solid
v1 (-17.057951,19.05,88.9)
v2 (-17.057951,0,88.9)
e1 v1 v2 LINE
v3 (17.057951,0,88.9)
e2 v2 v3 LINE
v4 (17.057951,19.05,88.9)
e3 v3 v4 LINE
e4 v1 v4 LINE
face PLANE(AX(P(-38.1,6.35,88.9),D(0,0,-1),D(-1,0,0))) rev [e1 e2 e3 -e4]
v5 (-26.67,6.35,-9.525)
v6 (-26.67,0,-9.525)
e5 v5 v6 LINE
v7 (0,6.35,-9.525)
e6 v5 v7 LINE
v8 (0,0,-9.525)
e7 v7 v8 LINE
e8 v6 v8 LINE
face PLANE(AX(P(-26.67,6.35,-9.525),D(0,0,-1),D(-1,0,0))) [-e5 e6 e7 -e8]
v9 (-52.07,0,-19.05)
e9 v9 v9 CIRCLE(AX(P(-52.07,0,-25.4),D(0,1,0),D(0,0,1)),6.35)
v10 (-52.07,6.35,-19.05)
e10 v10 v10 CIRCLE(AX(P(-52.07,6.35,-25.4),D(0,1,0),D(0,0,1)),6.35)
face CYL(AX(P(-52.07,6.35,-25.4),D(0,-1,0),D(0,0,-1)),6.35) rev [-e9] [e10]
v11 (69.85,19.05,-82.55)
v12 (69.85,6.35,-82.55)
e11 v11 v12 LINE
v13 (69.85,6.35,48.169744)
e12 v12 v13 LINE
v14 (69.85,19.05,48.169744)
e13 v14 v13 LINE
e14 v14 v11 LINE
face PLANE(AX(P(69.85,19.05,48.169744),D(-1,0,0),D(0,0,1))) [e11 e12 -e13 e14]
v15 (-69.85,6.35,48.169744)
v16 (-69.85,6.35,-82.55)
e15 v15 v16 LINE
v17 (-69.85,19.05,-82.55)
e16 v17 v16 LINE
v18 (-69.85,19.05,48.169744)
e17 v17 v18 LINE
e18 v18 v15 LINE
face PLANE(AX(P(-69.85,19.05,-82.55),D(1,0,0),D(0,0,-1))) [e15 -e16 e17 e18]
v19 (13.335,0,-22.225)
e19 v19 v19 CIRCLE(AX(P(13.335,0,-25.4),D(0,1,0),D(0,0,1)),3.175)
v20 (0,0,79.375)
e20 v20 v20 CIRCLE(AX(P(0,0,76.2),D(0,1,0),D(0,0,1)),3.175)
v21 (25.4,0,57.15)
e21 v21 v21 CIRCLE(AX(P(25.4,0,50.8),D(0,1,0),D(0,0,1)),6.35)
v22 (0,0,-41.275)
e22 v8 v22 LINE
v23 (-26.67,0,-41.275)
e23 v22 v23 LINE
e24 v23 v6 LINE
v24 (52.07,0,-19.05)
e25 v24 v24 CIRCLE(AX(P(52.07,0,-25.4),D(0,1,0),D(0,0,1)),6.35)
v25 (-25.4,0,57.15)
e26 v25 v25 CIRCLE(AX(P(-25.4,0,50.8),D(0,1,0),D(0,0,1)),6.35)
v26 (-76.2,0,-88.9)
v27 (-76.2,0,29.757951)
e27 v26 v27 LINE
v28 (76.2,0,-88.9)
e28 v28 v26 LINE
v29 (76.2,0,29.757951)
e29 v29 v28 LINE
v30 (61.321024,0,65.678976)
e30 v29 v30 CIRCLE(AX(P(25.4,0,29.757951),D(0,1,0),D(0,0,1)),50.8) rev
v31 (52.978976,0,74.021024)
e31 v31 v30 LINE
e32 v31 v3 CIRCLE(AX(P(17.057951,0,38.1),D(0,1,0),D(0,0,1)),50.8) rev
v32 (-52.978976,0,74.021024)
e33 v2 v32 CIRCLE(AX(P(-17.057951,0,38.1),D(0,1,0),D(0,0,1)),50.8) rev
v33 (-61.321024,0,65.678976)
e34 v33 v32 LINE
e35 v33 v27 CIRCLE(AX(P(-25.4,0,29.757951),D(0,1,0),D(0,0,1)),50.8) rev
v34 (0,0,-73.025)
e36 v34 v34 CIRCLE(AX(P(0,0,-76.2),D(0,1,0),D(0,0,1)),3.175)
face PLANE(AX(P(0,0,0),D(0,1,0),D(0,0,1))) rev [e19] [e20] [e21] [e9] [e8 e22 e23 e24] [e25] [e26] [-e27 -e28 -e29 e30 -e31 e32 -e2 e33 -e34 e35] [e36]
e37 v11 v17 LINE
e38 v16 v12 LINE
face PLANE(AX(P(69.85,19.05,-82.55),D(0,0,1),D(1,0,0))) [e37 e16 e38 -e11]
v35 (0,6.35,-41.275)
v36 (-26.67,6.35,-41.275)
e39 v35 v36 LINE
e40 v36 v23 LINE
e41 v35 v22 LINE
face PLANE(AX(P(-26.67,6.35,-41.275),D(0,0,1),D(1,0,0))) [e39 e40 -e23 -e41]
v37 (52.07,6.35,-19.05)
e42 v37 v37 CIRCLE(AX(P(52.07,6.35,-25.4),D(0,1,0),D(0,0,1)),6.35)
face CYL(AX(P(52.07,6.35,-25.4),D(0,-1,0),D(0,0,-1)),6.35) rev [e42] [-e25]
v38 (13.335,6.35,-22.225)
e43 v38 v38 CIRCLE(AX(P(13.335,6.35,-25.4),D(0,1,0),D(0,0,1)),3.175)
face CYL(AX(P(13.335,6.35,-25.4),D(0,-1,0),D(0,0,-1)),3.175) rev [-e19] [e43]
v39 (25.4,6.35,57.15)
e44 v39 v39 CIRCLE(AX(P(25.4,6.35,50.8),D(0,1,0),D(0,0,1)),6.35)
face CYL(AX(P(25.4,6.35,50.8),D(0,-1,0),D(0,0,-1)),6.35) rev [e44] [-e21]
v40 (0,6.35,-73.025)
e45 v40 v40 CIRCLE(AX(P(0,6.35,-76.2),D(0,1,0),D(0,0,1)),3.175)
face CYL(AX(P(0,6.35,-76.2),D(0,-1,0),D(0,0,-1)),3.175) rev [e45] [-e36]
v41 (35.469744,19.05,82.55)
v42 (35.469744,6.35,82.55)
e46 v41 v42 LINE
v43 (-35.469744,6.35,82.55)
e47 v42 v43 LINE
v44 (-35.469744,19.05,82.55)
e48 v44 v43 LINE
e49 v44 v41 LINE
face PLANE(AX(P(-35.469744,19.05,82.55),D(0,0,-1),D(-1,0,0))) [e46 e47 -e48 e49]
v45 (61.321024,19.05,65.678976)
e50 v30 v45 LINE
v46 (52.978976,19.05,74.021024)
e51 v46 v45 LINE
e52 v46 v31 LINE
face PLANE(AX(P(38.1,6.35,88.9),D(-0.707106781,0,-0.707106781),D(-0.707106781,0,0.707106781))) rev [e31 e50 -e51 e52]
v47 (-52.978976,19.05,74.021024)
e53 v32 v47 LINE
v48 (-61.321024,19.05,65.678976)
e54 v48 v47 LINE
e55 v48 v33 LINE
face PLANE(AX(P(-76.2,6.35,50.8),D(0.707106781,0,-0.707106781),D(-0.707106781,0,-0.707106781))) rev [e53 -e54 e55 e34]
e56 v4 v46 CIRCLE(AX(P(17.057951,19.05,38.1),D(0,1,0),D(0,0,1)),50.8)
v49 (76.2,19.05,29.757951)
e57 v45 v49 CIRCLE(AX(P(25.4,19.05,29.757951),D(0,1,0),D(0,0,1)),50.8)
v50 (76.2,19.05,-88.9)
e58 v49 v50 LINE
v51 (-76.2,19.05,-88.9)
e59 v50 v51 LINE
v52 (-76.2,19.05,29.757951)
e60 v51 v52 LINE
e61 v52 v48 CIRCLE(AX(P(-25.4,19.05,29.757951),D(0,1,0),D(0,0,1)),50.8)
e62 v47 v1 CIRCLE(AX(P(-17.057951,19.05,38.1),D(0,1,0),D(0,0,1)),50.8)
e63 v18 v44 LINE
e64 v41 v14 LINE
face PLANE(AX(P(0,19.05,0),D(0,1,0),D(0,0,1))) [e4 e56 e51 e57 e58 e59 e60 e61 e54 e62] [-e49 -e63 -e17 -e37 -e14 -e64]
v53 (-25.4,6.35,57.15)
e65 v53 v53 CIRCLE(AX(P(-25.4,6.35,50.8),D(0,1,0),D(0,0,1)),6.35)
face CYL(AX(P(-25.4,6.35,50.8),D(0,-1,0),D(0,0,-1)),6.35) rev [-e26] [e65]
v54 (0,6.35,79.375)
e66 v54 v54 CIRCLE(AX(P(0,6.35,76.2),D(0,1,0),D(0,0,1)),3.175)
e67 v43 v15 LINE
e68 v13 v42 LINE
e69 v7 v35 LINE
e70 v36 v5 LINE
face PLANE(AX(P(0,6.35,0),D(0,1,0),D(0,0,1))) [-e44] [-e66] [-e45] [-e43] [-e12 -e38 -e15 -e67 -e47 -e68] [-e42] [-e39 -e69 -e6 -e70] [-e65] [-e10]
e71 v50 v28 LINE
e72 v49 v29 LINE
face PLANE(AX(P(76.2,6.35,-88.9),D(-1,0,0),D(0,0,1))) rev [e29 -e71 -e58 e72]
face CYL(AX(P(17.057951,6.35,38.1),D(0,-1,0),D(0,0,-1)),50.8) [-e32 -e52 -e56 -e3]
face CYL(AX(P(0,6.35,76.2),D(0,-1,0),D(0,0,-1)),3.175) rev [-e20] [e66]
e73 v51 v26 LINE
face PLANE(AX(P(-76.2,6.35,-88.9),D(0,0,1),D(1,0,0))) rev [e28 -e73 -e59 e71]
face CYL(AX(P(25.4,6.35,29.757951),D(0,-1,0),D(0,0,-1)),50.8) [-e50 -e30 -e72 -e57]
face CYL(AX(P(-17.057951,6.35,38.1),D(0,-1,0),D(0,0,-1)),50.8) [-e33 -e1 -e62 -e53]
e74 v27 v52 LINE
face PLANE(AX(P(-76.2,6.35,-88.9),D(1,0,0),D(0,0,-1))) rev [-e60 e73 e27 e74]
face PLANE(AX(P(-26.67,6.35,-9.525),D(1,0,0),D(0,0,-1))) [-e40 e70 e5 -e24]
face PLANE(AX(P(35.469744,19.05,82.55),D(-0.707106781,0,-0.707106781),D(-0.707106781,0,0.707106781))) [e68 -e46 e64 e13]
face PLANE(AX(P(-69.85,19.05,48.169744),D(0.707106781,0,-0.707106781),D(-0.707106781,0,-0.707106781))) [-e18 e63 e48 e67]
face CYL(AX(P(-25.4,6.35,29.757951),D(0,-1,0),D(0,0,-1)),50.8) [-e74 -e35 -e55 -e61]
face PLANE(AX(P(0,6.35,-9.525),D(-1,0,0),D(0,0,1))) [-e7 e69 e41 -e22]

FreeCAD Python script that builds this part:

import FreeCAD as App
import Part
import Sketcher
from FreeCAD import Vector
Q = App.Units.Quantity


def edges_at(feature, points):
    """Names of the edges that pass closest to the given points."""
    edges = feature.Shape.Edges
    near = lambda p: min(range(len(edges)), key=lambda i: edges[i].distToShape(Part.Vertex(*p))[0])
    return sorted({f"Edge{near(p) + 1}" for p in points})


def add_polygon(sketch, points):
    """Adds a closed chain of lines whose ends are joined by coincident constraints."""
    first, n = sketch.GeometryCount, len(points)
    for a, b in zip(points, points[1:] + points[:1]):
        sketch.addGeometry(Part.LineSegment(App.Vector(*a, 0), App.Vector(*b, 0)), False)
    for i in range(n):
        sketch.addConstraint(Sketcher.Constraint("Coincident", first + i, 2, first + (i + 1) % n, 1))

doc = App.newDocument("Part")
body = doc.addObject("PartDesign::Body", "Body")

sketch1 = body.newObject("Sketcher::SketchObject", "Sketch")
sketch1.AttachmentSupport = (doc.getObject("XZ_Plane"), [""])
sketch1.MapMode = "FlatFace"
add_polygon(sketch1, [(76.2, -88.9), (-76.2, -88.9), (-76.2, 50.8), (-38.1, 88.9), (38.1, 88.9), (76.2, 50.8)])
sketch1.addGeometry(Part.Circle(Vector(0, 76.2, 0), Vector(0, 0, 1), 3.2), False)
sketch1.addGeometry(Part.Circle(Vector(25.4, 50.8, 0), Vector(0, 0, 1), 6.3), False)
sketch1.addGeometry(Part.Circle(Vector(-25.4, 50.8, 0), Vector(0, 0, 1), 6.3), False)
sketch1.addGeometry(Part.Circle(Vector(52.1, -25.4, 0), Vector(0, 0, 1), 6.3), False)
sketch1.addGeometry(Part.Circle(Vector(13.3, -25.4, 0), Vector(0, 0, 1), 3.2), False)
sketch1.addGeometry(Part.Circle(Vector(0, -76.2, 0), Vector(0, 0, 1), 3.2), False)
add_polygon(sketch1, [(-26.7, -9.5), (-26.7, -41.3), (0, -41.3), (0, -9.5)])
sketch1.addGeometry(Part.Circle(Vector(-52.1, -25.4, 0), Vector(0, 0, 1), 6.3), False)
sketch1.addConstraint([
    Sketcher.Constraint("Horizontal", 0),
    Sketcher.Constraint("Vertical", 1),
    Sketcher.Constraint("Horizontal", 3),
    Sketcher.Constraint("Vertical", 5),
    Sketcher.Constraint("Vertical", 12),
    Sketcher.Constraint("Horizontal", 13),
    Sketcher.Constraint("Vertical", 14),
    Sketcher.Constraint("Horizontal", 15),
    Sketcher.Constraint("Equal", 7, 8),
    Sketcher.Constraint("Equal", 8, 9),
    Sketcher.Constraint("Equal", 6, 10),
    Sketcher.Constraint("Equal", 10, 11),
    Sketcher.Constraint("Equal", 9, 16),
    Sketcher.Constraint("Symmetric", 6, 3, 11, 3, -1, 1),
    Sketcher.Constraint("Symmetric", 7, 3, 8, 3, -2),
    Sketcher.Constraint("Symmetric", 9, 3, 16, 3, -2),
    Sketcher.Constraint("Symmetric", 1, 2, 4, 2, -2),
    Sketcher.Constraint("PointOnObject", 6, 3, -2),
    Sketcher.Constraint("PointOnObject", 13, 2, -2),
    Sketcher.Constraint("Perpendicular", 2, 4),
    Sketcher.Constraint("Horizontal", 9, 3, 10, 3),
    Sketcher.Constraint("Horizontal", 8, 3, 1, 2),
    Sketcher.Constraint("Equal", 2, 4),
    Sketcher.Constraint("Diameter", 7, Q("0.5 in")),
    Sketcher.Constraint("Diameter", 6, Q("0.25 in")),
    Sketcher.Constraint("DistanceX", 0, 2, 0, 1, Q("6 in")),
    Sketcher.Constraint("DistanceX", 3, 1, 3, 2, Q("3 in")),
    Sketcher.Constraint("DistanceY", 1, 1, 1, 2, Q("5.5 in")),
    Sketcher.Constraint("DistanceY", -1, 1, 6, 3, Q("3 in")),
    Sketcher.Constraint("DistanceX", -1, 1, 7, 3, Q("1 in")),
    Sketcher.Constraint("DistanceY", -1, 1, 7, 3, Q("2 in")),
    Sketcher.Constraint("DistanceY", 9, 3, -1, 1, Q("1 in")),
    Sketcher.Constraint("DistanceX", 16, 3, 12, 2, Q("1 in")),
    Sketcher.Constraint("DistanceX", 13, 1, 13, 2, Q("1.05 in")),
    Sketcher.Constraint("DistanceY", 12, 2, 12, 1, Q("1.25 in")),
    Sketcher.Constraint("DistanceX", -1, 1, 10, 3, Q("0.525 in")),
    Sketcher.Constraint("DistanceY", 12, 2, -1, 1, Q("1.625 in")),
])
pad1 = body.newObject("PartDesign::Pad", "Pad")
pad1.Profile = sketch1
pad1.Length = Q("0.25 in")
pad1.Reversed = True

sketch2 = body.newObject("Sketcher::SketchObject", "Sketch001")
sketch2.AttachmentSupport = (doc.getObject("XZ_Plane"), [""])
sketch2.MapMode = "FlatFace"
add_polygon(sketch2, [(-76, -89), (-76, 51), (-38, 89), (38, 89), (76, 51), (76, -89)])
add_polygon(sketch2, [(-70, 48), (-70, -83), (70, -83), (70, 48), (35, 83), (-35, 83)])
sketch2.addConstraint([
    Sketcher.Constraint("Vertical", 0),
    Sketcher.Constraint("Horizontal", 2),
    Sketcher.Constraint("Vertical", 4),
    Sketcher.Constraint("Horizontal", 5),
    Sketcher.Constraint("Vertical", 6),
    Sketcher.Constraint("Horizontal", 7),
    Sketcher.Constraint("Vertical", 8),
    Sketcher.Constraint("Horizontal", 10),
    Sketcher.Constraint("Symmetric", 0, 2, 3, 2, -2),
    Sketcher.Constraint("Symmetric", 8, 2, 11, 2, -2),
    Sketcher.Constraint("Perpendicular", 1, 3),
    Sketcher.Constraint("Parallel", 3, 9),
    Sketcher.Constraint("Perpendicular", 9, 11),
    Sketcher.Constraint("Equal", 7, 0),
    Sketcher.Constraint("Equal", 1, 3),
    Sketcher.Constraint("DistanceX", 2, 1, 2, 2, Q("3 in")),
    Sketcher.Constraint("DistanceX", 5, 2, 5, 1, Q("6 in")),
    Sketcher.Constraint("DistanceX", 7, 1, 7, 2, Q("5.5 in")),
    Sketcher.Constraint("DistanceY", -1, 1, 0, 2, Q("2 in")),
    Sketcher.Constraint("DistanceY", 6, 2, -1, 1, Q("3.25 in")),
    Sketcher.Constraint("DistanceY", -1, 1, 9, 2, Q("3.25 in")),
    Sketcher.Constraint("DistanceX", 10, 2, 10, 1, 70.939488),
])
pad2 = body.newObject("PartDesign::Pad", "Pad001")
pad2.Profile = sketch2
pad2.Length = Q("0.75 in")
pad2.Reversed = True
doc.recompute()

fillet = body.newObject("PartDesign::Fillet", "Fillet")
fillet.Base = (pad2, edges_at(pad2, [
    (76.2, 9.525, 50.8),
    (38.1, 9.525, 88.9),
    (-38.1, 9.525, 88.9),
    (-76.2, 9.525, 50.8),
]))
fillet.Radius = Q("2 in")

doc.recompute()
